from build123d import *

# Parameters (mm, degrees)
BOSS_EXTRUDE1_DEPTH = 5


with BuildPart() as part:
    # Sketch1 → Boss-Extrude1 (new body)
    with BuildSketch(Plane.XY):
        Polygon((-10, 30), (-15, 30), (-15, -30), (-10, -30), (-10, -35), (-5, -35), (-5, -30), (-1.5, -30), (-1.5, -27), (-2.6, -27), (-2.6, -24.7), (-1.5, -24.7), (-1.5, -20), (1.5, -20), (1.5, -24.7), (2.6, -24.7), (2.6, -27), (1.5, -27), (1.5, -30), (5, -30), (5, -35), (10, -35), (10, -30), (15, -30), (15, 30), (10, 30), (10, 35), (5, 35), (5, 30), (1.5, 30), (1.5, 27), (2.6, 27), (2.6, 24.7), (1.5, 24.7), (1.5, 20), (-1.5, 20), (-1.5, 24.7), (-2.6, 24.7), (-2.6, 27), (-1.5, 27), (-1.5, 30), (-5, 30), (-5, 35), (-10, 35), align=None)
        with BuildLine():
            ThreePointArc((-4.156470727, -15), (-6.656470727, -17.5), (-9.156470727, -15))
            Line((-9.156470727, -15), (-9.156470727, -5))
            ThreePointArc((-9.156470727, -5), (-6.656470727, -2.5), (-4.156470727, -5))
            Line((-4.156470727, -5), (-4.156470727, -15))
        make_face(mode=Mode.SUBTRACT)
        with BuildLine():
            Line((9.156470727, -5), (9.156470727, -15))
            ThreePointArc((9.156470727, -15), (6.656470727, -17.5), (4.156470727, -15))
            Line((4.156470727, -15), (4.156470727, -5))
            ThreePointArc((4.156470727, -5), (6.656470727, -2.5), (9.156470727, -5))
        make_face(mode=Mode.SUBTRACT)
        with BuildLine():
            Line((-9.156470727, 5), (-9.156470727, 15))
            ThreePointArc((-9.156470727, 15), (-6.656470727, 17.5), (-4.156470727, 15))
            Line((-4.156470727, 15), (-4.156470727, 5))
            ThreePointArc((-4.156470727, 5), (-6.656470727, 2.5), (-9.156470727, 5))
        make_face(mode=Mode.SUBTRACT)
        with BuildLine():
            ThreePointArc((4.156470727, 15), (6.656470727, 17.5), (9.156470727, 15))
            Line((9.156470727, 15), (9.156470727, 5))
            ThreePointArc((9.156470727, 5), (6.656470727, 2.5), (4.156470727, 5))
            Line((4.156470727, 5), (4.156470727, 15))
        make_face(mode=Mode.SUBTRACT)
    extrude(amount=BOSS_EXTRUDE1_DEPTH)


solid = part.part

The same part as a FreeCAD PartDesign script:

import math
import FreeCAD as App
import Part
import Sketcher


def add_polygon(sketch, points):
    """Adds a closed chain of lines whose ends are joined by coincident constraints."""
    first, n = sketch.GeometryCount, len(points)
    for a, b in zip(points, points[1:] + points[:1]):
        sketch.addGeometry(Part.LineSegment(App.Vector(*a, 0), App.Vector(*b, 0)), False)
    for i in range(n):
        sketch.addConstraint(Sketcher.Constraint("Coincident", first + i, 2, first + (i + 1) % n, 1))

doc = App.newDocument("Part")
body = doc.addObject("PartDesign::Body", "Body")

# Sketch on XY plane
sketch1 = doc.addObject("Sketcher::SketchObject", "Sketch")
body.addObject(sketch1)
sketch1.AttachmentSupport = (doc.XY_Plane, [""])
sketch1.MapMode = "FlatFace"
add_polygon(sketch1, [(-10, 30), (-15, 30), (-15, -30), (-10, -30), (-10, -35), (-5, -35), (-5, -30), (-1.5, -30), (-1.5, -27), (-2.6, -27), (-2.6, -24.7), (-1.5, -24.7), (-1.5, -20), (1.5, -20), (1.5, -24.7), (2.6, -24.7), (2.6, -27), (1.5, -27), (1.5, -30), (5, -30), (5, -35), (10, -35), (10, -30), (15, -30), (15, 30), (10, 30), (10, 35), (5, 35), (5, 30), (1.5, 30), (1.5, 27), (2.6, 27), (2.6, 24.7), (1.5, 24.7), (1.5, 20), (-1.5, 20), (-1.5, 24.7), (-2.6, 24.7), (-2.6, 27), (-1.5, 27), (-1.5, 30), (-5, 30), (-5, 35), (-10, 35)])  # lines 0-43
sketch1.addGeometry(Part.LineSegment(App.Vector(-4.2, -5, 0), App.Vector(-4.2, -15, 0)), False)  # 44
sketch1.addGeometry(Part.ArcOfCircle(Part.Circle(App.Vector(-6.7, -15, 0), App.Vector(0, 0, 1), 2.5), math.radians(180), math.radians(360)), False)  # 45
sketch1.addGeometry(Part.LineSegment(App.Vector(-9.2, -15, 0), App.Vector(-9.2, -5, 0)), False)  # 46
sketch1.addGeometry(Part.ArcOfCircle(Part.Circle(App.Vector(-6.7, -5, 0), App.Vector(0, 0, 1), 2.5), math.radians(0), math.radians(180)), False)  # 47
sketch1.addGeometry(Part.ArcOfCircle(Part.Circle(App.Vector(6.7, -5, 0), App.Vector(0, 0, 1), 2.5), math.radians(0), math.radians(180)), False)  # 48
sketch1.addGeometry(Part.LineSegment(App.Vector(9.2, -5, 0), App.Vector(9.2, -15, 0)), False)  # 49
sketch1.addGeometry(Part.ArcOfCircle(Part.Circle(App.Vector(6.7, -15, 0), App.Vector(0, 0, 1), 2.5), math.radians(180), math.radians(360)), False)  # 50
sketch1.addGeometry(Part.LineSegment(App.Vector(4.2, -15, 0), App.Vector(4.2, -5, 0)), False)  # 51
sketch1.addGeometry(Part.ArcOfCircle(Part.Circle(App.Vector(-6.7, 5, 0), App.Vector(0, 0, 1), 2.5), math.radians(180), math.radians(360)), False)  # 52
sketch1.addGeometry(Part.LineSegment(App.Vector(-9.2, 5, 0), App.Vector(-9.2, 15, 0)), False)  # 53
sketch1.addGeometry(Part.ArcOfCircle(Part.Circle(App.Vector(-6.7, 15, 0), App.Vector(0, 0, 1), 2.5), math.radians(0), math.radians(180)), False)  # 54
sketch1.addGeometry(Part.LineSegment(App.Vector(-4.2, 15, 0), App.Vector(-4.2, 5, 0)), False)  # 55
sketch1.addGeometry(Part.LineSegment(App.Vector(4.2, 5, 0), App.Vector(4.2, 15, 0)), False)  # 56
sketch1.addGeometry(Part.ArcOfCircle(Part.Circle(App.Vector(6.7, 15, 0), App.Vector(0, 0, 1), 2.5), math.radians(0), math.radians(180)), False)  # 57
sketch1.addGeometry(Part.LineSegment(App.Vector(9.2, 15, 0), App.Vector(9.2, 5, 0)), False)  # 58
sketch1.addGeometry(Part.ArcOfCircle(Part.Circle(App.Vector(6.7, 5, 0), App.Vector(0, 0, 1), 2.5), math.radians(180), math.radians(360)), False)  # 59
sketch1.addConstraint([
    Sketcher.Constraint("Tangent", 44, 2, 45, 2),
    Sketcher.Constraint("Tangent", 45, 1, 46, 1),
    Sketcher.Constraint("Tangent", 46, 2, 47, 2),
    Sketcher.Constraint("Tangent", 47, 1, 44, 1),
    Sketcher.Constraint("Tangent", 48, 1, 49, 1),
    Sketcher.Constraint("Tangent", 49, 2, 50, 2),
    Sketcher.Constraint("Tangent", 50, 1, 51, 1),
    Sketcher.Constraint("Tangent", 51, 2, 48, 2),
    Sketcher.Constraint("Tangent", 52, 1, 53, 1),
    Sketcher.Constraint("Tangent", 53, 2, 54, 2),
    Sketcher.Constraint("Tangent", 54, 1, 55, 1),
    Sketcher.Constraint("Tangent", 55, 2, 52, 2),
    Sketcher.Constraint("Tangent", 56, 2, 57, 2),
    Sketcher.Constraint("Tangent", 57, 1, 58, 1),
    Sketcher.Constraint("Tangent", 58, 2, 59, 2),
    Sketcher.Constraint("Tangent", 59, 1, 56, 1),
    Sketcher.Constraint("Horizontal", 0),
    Sketcher.Constraint("Vertical", 1),
    Sketcher.Constraint("Horizontal", 2),
    Sketcher.Constraint("Vertical", 3),
    Sketcher.Constraint("Horizontal", 4),
    Sketcher.Constraint("Vertical", 5),
    Sketcher.Constraint("Horizontal", 6),
    Sketcher.Constraint("Vertical", 7),
    Sketcher.Constraint("Horizontal", 8),
    Sketcher.Constraint("Vertical", 9),
    Sketcher.Constraint("Horizontal", 10),
    Sketcher.Constraint("Vertical", 11),
    Sketcher.Constraint("Horizontal", 12),
    Sketcher.Constraint("Vertical", 13),
    Sketcher.Constraint("Horizontal", 14),
    Sketcher.Constraint("Vertical", 15),
    Sketcher.Constraint("Horizontal", 16),
    Sketcher.Constraint("Vertical", 17),
    Sketcher.Constraint("Horizontal", 18),
    Sketcher.Constraint("Vertical", 19),
    Sketcher.Constraint("Horizontal", 20),
    Sketcher.Constraint("Vertical", 21),
    Sketcher.Constraint("Horizontal", 22),
    Sketcher.Constraint("Vertical", 23),
    Sketcher.Constraint("Horizontal", 24),
    Sketcher.Constraint("Vertical", 25),
    Sketcher.Constraint("Horizontal", 26),
    Sketcher.Constraint("Vertical", 27),
    Sketcher.Constraint("Horizontal", 28),
    Sketcher.Constraint("Vertical", 29),
    Sketcher.Constraint("Horizontal", 30),
    Sketcher.Constraint("Vertical", 31),
    Sketcher.Constraint("Horizontal", 32),
    Sketcher.Constraint("Vertical", 33),
    Sketcher.Constraint("Horizontal", 34),
    Sketcher.Constraint("Vertical", 35),
    Sketcher.Constraint("Horizontal", 36),
    Sketcher.Constraint("Vertical", 37),
    Sketcher.Constraint("Horizontal", 38),
    Sketcher.Constraint("Vertical", 39),
    Sketcher.Constraint("Horizontal", 40),
    Sketcher.Constraint("Vertical", 41),
    Sketcher.Constraint("Horizontal", 42),
    Sketcher.Constraint("Vertical", 43),
    Sketcher.Constraint("Vertical", 44),
    Sketcher.Constraint("Vertical", 46),
    Sketcher.Constraint("Vertical", 49),
    Sketcher.Constraint("Vertical", 51),
    Sketcher.Constraint("Vertical", 53),
    Sketcher.Constraint("Vertical", 55),
    Sketcher.Constraint("Vertical", 56),
    Sketcher.Constraint("Vertical", 58),
    Sketcher.Constraint("Equal", 47, 48),
    Sketcher.Constraint("Equal", 50, 52),
    Sketcher.Constraint("Equal", 54, 57),
    Sketcher.Constraint("Symmetric", 48, 3, 52, 3, -1, 1),
    Sketcher.Constraint("Symmetric", 45, 3, 57, 3, -1, 1),
    Sketcher.Constraint("Symmetric", 0, 2, 22, 2, -1, 1),
    Sketcher.Constraint("Symmetric", 2, 2, 24, 2, -1, 1),
    Sketcher.Constraint("Symmetric", 4, 2, 26, 2, -1, 1),
    Sketcher.Constraint("Symmetric", 6, 2, 28, 2, -1, 1),
    Sketcher.Constraint("Symmetric", 8, 2, 30, 2, -1, 1),
    Sketcher.Constraint("Symmetric", 10, 2, 32, 2, -1, 1),
    Sketcher.Constraint("Symmetric", 12, 2, 34, 2, -1, 1),
    Sketcher.Constraint("Symmetric", 14, 2, 36, 2, -1, 1),
    Sketcher.Constraint("Symmetric", 16, 2, 38, 2, -1, 1),
    Sketcher.Constraint("Symmetric", 18, 2, 40, 2, -1, 1),
    Sketcher.Constraint("Symmetric", 20, 2, 42, 2, -1, 1),
    Sketcher.Constraint("Symmetric", 47, 3, 48, 3, -2),
    Sketcher.Constraint("Symmetric", 10, 2, 13, 2, -2),
    Sketcher.Constraint("Symmetric", 8, 2, 15, 2, -2),
    Sketcher.Constraint("Symmetric", 6, 2, 17, 2, -2),
    Sketcher.Constraint("Symmetric", 4, 2, 19, 2, -2),
    Sketcher.Constraint("Symmetric", 2, 2, 21, 2, -2),
    Sketcher.Constraint("Horizontal", 45, 3, 50, 3),
    Sketcher.Constraint("Horizontal", 54, 3, 57, 3),
    Sketcher.Constraint("Horizontal", 52, 3, 59, 3),
    Sketcher.Constraint("Horizontal", 2, 2, 5, 2),
    Sketcher.Constraint("Vertical", 7, 2, 10, 2),
    Sketcher.Constraint("Equal", 2, 4),
    Sketcher.Constraint("Equal", 42, 3),
    Sketcher.Constraint("Equal", 34, 7),
    Sketcher.Constraint("Radius", 45, 2.5),
    Sketcher.Constraint("DistanceX", 0, 2, 0, 1, 5.0),
    Sketcher.Constraint("DistanceX", 12, 1, 12, 2, 3.0),
    Sketcher.Constraint("DistanceY", 1, 2, 1, 1, 60.0),
    Sketcher.Constraint("DistanceY", 44, 2, 44, 1, 10.0),
    Sketcher.Constraint("DistanceX", 6, 1, 6, 2, 3.5),
    Sketcher.Constraint("DistanceX", 8, 2, 8, 1, 1.1),
    Sketcher.Constraint("DistanceY", 9, 1, 9, 2, 2.3),
    Sketcher.Constraint("DistanceY", 11, 1, 11, 2, 4.7),
    Sketcher.Constraint("DistanceY", 45, 3, -1, 1, 15.0),
    Sketcher.Constraint("DistanceX", 45, 3, -1, 1, 6.656471),
])
pad1 = doc.addObject("PartDesign::Pad", "Pad")
body.addObject(pad1)
pad1.Profile = sketch1
pad1.Length = 5

doc.recompute()
